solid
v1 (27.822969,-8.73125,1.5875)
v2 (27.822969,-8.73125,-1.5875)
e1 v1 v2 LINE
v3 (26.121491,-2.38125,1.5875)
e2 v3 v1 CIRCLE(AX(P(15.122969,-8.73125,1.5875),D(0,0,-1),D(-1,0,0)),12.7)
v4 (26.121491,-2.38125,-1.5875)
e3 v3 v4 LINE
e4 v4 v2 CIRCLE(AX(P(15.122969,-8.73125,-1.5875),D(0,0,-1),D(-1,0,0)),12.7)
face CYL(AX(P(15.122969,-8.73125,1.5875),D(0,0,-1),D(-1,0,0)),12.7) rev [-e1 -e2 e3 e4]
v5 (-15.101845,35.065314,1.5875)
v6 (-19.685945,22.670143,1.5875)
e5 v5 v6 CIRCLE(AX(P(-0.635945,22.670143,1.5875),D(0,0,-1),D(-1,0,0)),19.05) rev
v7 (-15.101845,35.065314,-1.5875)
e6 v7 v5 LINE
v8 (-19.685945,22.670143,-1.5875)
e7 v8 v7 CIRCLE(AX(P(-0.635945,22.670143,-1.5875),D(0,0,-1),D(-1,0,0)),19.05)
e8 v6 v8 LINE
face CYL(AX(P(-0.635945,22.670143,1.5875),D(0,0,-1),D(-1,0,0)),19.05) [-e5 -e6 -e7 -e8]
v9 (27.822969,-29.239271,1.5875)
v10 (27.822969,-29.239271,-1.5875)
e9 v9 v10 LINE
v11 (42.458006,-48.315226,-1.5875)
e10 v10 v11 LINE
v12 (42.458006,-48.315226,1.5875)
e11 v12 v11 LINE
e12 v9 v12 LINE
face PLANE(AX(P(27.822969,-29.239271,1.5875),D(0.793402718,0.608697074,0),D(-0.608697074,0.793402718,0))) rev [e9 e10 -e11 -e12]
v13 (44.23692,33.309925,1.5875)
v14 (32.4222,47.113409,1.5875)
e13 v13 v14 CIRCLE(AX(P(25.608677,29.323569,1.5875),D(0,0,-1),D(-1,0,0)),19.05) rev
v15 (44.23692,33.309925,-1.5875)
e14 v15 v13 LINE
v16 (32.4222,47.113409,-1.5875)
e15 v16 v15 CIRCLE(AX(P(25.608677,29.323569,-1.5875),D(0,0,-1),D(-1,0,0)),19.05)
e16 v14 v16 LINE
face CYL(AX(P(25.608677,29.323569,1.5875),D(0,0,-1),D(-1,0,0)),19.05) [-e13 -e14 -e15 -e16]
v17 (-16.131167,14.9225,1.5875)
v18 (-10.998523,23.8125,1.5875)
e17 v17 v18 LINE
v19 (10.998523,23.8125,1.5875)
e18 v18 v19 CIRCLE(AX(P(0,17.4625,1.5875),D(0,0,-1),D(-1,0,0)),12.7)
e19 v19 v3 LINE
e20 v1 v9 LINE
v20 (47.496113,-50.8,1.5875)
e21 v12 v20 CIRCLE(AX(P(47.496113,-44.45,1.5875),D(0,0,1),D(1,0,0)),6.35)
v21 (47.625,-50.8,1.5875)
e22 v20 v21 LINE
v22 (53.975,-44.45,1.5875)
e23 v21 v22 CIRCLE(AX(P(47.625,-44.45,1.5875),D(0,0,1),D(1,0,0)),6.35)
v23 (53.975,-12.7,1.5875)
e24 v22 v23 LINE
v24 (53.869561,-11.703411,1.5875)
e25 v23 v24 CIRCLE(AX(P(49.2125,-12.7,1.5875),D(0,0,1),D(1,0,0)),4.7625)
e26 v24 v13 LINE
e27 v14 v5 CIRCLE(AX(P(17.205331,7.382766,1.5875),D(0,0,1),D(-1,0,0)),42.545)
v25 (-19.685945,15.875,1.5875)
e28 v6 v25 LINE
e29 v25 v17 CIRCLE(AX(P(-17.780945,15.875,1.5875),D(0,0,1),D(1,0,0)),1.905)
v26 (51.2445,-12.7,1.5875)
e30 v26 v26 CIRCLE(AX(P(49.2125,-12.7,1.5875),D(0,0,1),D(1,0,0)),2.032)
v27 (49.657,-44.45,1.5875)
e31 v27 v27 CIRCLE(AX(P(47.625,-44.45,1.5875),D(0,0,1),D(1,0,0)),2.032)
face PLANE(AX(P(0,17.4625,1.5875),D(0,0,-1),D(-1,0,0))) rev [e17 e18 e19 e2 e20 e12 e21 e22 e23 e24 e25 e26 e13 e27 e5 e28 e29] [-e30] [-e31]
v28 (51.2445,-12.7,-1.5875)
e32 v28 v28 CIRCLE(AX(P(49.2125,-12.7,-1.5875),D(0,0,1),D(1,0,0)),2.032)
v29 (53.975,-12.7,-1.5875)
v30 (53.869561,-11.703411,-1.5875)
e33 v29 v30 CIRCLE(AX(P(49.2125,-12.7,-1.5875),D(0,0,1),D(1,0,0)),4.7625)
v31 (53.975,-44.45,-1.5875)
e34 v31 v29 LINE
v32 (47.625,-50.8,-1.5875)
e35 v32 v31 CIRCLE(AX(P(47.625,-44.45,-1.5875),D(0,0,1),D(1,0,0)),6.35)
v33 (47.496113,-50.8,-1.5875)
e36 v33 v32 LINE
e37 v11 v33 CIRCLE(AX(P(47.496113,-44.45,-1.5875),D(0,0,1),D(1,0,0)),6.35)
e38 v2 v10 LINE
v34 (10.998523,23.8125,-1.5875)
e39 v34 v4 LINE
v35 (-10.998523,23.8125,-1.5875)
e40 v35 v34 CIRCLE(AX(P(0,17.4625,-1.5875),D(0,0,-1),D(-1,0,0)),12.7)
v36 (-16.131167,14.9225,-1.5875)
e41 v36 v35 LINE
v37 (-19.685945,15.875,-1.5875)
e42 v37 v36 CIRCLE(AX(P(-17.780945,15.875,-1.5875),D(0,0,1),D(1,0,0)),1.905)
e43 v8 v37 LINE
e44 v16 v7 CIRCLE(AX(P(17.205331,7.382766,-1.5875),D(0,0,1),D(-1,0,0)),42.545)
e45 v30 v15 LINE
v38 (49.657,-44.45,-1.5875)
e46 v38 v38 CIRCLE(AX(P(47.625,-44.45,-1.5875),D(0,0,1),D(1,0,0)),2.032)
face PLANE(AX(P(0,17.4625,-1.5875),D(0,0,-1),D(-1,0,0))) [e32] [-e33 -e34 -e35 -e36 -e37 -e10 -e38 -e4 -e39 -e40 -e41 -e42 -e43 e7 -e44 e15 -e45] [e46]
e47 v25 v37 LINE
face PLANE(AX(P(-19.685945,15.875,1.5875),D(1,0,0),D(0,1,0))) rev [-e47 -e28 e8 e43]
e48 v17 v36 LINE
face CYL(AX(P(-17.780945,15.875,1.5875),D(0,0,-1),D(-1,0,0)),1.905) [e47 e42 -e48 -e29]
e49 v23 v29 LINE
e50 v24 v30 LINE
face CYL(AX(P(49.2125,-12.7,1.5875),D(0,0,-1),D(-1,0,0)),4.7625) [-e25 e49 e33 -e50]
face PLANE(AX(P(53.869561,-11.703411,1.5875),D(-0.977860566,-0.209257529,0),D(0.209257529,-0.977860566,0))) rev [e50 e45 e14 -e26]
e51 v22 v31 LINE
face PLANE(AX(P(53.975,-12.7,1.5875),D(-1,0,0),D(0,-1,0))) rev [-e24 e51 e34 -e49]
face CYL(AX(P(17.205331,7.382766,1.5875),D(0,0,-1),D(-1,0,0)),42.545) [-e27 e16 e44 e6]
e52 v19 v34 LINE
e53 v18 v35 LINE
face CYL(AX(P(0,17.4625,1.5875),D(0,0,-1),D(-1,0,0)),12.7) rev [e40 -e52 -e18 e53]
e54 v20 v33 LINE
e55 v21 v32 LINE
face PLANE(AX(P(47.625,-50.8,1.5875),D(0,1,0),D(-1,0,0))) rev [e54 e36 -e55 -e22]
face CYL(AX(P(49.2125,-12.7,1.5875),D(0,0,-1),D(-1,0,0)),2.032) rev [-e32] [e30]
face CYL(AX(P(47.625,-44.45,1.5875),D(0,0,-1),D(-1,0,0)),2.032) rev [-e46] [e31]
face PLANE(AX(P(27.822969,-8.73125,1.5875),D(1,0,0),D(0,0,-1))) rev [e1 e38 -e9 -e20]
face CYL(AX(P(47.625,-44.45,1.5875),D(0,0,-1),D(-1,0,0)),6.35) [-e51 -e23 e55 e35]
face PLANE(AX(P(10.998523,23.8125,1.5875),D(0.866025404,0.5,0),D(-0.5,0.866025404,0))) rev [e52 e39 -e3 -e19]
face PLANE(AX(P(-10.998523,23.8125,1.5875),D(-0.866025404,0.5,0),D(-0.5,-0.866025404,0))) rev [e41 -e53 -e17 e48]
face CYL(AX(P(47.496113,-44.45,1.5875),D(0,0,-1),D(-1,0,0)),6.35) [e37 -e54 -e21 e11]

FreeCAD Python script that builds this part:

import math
import FreeCAD as App
import Part
import Sketcher

V = App.Vector
Q = App.Units.Quantity


def edges_at(feature, points):
    """Names of the edges that pass closest to the given points."""
    edges = feature.Shape.Edges
    near = lambda p: min(range(len(edges)), key=lambda i: edges[i].distToShape(Part.Vertex(*p))[0])
    return sorted({f"Edge{near(p) + 1}" for p in points})

doc = App.newDocument("Part")
body = doc.addObject("PartDesign::Body", "Body")

sketch1 = body.newObject("Sketcher::SketchObject", "Sketch")
sketch1.AttachmentSupport = (doc.getObject("XY_Plane"), [""])
sketch1.MapMode = "FlatFace"
sketch1.addGeometry([
    Part.LineSegment(V(10.998523, 23.8125, 0), V(26.121491, -2.38125, 0)),
    Part.ArcOfCircle(Part.Circle(V(15.122969, -8.73125, 0), V(0, 0, 1), 12.7), math.radians(0), math.radians(30)),
    Part.LineSegment(V(27.822969, -8.73125, 0), V(27.822969, -29.239271, 0)),
    Part.LineSegment(V(27.822969, -29.239271, 0), V(42.458006, -48.315226, 0)),
    Part.ArcOfCircle(Part.Circle(V(47.496113, -44.45, 0), V(0, 0, 1), 6.35), math.radians(-142.504648), math.radians(-90)),
    Part.LineSegment(V(47.496113, -50.8, 0), V(47.625, -50.8, 0)),
    Part.ArcOfCircle(Part.Circle(V(47.625, -44.45, 0), V(0, 0, 1), 6.35), math.radians(-90), math.radians(0)),
    Part.LineSegment(V(53.975, -44.45, 0), V(53.975, -12.7, 0)),
    Part.ArcOfCircle(Part.Circle(V(49.2125, -12.7, 0), V(0, 0, 1), 4.7625), math.radians(0), math.radians(12.078845)),
    Part.LineSegment(V(53.869561, -11.703411, 0), V(42.458006, 41.622793, 0)),
    Part.ArcOfCircle(Part.Circle(V(17.205331, 7.382766, 0), V(0, 0, 1), 42.545), math.radians(53.590516), math.radians(150.12474)),
    Part.LineSegment(V(-19.685945, 28.575, 0), V(-19.685945, 15.875, 0)),
    Part.ArcOfCircle(Part.Circle(V(-17.780945, 15.875, 0), V(0, 0, 1), 1.905), math.radians(180), math.radians(330)),
    Part.LineSegment(V(-16.131167, 14.9225, 0), V(-10.998523, 23.8125, 0)),
    Part.ArcOfCircle(Part.Circle(V(0, 17.4625, 0), V(0, 0, 1), 12.7), math.radians(30), math.radians(150)),
    Part.Circle(V(47.625, -44.45, 0), V(0, 0, 1), 2.032),
    Part.Circle(V(49.2125, -12.7, 0), V(0, 0, 1), 2.032),
], False)
sketch1.addConstraint([
    Sketcher.Constraint("Tangent", 0, 2, 1, 2),
    Sketcher.Constraint("Tangent", 1, 1, 2, 1),
    Sketcher.Constraint("Coincident", 2, 2, 3, 1),
    Sketcher.Constraint("Tangent", 3, 2, 4, 1),
    Sketcher.Constraint("Tangent", 4, 2, 5, 1),
    Sketcher.Constraint("Tangent", 5, 2, 6, 1),
    Sketcher.Constraint("Tangent", 6, 2, 7, 1),
    Sketcher.Constraint("Tangent", 7, 2, 8, 1),
    Sketcher.Constraint("Tangent", 8, 2, 9, 1),
    Sketcher.Constraint("Coincident", 9, 2, 10, 1),
    Sketcher.Constraint("Coincident", 10, 2, 11, 1),
    Sketcher.Constraint("Tangent", 11, 2, 12, 1),
    Sketcher.Constraint("Tangent", 12, 2, 13, 1),
    Sketcher.Constraint("Tangent", 13, 2, 14, 2),
    Sketcher.Constraint("Tangent", 14, 1, 0, 1),
    Sketcher.Constraint("Vertical", 2),
    Sketcher.Constraint("Horizontal", 5),
    Sketcher.Constraint("Vertical", 7),
    Sketcher.Constraint("Vertical", 11),
    Sketcher.Constraint("Coincident", 15, 3, 6, 3),
    Sketcher.Constraint("Coincident", 16, 3, 8, 3),
    Sketcher.Constraint("Equal", 4, 6),
    Sketcher.Constraint("Equal", 1, 14),
    Sketcher.Constraint("Equal", 15, 16),
    Sketcher.Constraint("Symmetric", 13, 2, 14, 1, -2),
    Sketcher.Constraint("Vertical", 3, 2, 9, 2),
    Sketcher.Constraint("Radius", 1, Q("0.5 in")),
    Sketcher.Constraint("Diameter", 15, Q("0.16 in")),
    Sketcher.Constraint("Radius", 4, Q("0.25 in")),
    Sketcher.Constraint("DistanceY", 11, 2, 11, 1, Q("0.5 in")),
    Sketcher.Constraint("DistanceY", 4, 2, -1, 1, Q("2 in")),
    Sketcher.Constraint("Angle", 0, Q("-60 deg")),
    Sketcher.Constraint("Radius", 8, Q("0.1875 in")),
    Sketcher.Constraint("Radius", 10, Q("1.675 in")),
    Sketcher.Constraint("Radius", 12, Q("0.075 in")),
    Sketcher.Constraint("DistanceY", 7, 1, 7, 2, Q("1.25 in")),
    Sketcher.Constraint("DistanceY", 12, 2, 14, 3, Q("0.1 in")),
    Sketcher.Constraint("DistanceY", 1, 3, -1, 1, Q("0.34375 in")),
    Sketcher.Constraint("DistanceX", -1, 1, 6, 3, Q("1.875 in")),
    Sketcher.Constraint("DistanceY", -1, 1, 12, 3, Q("0.625 in")),
    Sketcher.Constraint("DistanceY", 2, 2, 2, 1, Q("20.508021 mm")),
    Sketcher.Constraint("Distance", 3, Q("24.043219 mm")),
    Sketcher.Constraint("DistanceX", -1, 1, 10, 3, Q("17.205331 mm")),
])
pad1 = body.newObject("PartDesign::Pad", "Pad")
pad1.Profile = sketch1
pad1.Length = Q("0.125 in")
pad1.Midplane = True
doc.recompute()

fillet = body.newObject("PartDesign::Fillet", "Fillet")
fillet.Base = (pad1, edges_at(pad1, [(-19.686, 28.575, 0), (42.458, 41.623, 0)]))
fillet.Radius = Q("0.75 in")

doc.recompute()
